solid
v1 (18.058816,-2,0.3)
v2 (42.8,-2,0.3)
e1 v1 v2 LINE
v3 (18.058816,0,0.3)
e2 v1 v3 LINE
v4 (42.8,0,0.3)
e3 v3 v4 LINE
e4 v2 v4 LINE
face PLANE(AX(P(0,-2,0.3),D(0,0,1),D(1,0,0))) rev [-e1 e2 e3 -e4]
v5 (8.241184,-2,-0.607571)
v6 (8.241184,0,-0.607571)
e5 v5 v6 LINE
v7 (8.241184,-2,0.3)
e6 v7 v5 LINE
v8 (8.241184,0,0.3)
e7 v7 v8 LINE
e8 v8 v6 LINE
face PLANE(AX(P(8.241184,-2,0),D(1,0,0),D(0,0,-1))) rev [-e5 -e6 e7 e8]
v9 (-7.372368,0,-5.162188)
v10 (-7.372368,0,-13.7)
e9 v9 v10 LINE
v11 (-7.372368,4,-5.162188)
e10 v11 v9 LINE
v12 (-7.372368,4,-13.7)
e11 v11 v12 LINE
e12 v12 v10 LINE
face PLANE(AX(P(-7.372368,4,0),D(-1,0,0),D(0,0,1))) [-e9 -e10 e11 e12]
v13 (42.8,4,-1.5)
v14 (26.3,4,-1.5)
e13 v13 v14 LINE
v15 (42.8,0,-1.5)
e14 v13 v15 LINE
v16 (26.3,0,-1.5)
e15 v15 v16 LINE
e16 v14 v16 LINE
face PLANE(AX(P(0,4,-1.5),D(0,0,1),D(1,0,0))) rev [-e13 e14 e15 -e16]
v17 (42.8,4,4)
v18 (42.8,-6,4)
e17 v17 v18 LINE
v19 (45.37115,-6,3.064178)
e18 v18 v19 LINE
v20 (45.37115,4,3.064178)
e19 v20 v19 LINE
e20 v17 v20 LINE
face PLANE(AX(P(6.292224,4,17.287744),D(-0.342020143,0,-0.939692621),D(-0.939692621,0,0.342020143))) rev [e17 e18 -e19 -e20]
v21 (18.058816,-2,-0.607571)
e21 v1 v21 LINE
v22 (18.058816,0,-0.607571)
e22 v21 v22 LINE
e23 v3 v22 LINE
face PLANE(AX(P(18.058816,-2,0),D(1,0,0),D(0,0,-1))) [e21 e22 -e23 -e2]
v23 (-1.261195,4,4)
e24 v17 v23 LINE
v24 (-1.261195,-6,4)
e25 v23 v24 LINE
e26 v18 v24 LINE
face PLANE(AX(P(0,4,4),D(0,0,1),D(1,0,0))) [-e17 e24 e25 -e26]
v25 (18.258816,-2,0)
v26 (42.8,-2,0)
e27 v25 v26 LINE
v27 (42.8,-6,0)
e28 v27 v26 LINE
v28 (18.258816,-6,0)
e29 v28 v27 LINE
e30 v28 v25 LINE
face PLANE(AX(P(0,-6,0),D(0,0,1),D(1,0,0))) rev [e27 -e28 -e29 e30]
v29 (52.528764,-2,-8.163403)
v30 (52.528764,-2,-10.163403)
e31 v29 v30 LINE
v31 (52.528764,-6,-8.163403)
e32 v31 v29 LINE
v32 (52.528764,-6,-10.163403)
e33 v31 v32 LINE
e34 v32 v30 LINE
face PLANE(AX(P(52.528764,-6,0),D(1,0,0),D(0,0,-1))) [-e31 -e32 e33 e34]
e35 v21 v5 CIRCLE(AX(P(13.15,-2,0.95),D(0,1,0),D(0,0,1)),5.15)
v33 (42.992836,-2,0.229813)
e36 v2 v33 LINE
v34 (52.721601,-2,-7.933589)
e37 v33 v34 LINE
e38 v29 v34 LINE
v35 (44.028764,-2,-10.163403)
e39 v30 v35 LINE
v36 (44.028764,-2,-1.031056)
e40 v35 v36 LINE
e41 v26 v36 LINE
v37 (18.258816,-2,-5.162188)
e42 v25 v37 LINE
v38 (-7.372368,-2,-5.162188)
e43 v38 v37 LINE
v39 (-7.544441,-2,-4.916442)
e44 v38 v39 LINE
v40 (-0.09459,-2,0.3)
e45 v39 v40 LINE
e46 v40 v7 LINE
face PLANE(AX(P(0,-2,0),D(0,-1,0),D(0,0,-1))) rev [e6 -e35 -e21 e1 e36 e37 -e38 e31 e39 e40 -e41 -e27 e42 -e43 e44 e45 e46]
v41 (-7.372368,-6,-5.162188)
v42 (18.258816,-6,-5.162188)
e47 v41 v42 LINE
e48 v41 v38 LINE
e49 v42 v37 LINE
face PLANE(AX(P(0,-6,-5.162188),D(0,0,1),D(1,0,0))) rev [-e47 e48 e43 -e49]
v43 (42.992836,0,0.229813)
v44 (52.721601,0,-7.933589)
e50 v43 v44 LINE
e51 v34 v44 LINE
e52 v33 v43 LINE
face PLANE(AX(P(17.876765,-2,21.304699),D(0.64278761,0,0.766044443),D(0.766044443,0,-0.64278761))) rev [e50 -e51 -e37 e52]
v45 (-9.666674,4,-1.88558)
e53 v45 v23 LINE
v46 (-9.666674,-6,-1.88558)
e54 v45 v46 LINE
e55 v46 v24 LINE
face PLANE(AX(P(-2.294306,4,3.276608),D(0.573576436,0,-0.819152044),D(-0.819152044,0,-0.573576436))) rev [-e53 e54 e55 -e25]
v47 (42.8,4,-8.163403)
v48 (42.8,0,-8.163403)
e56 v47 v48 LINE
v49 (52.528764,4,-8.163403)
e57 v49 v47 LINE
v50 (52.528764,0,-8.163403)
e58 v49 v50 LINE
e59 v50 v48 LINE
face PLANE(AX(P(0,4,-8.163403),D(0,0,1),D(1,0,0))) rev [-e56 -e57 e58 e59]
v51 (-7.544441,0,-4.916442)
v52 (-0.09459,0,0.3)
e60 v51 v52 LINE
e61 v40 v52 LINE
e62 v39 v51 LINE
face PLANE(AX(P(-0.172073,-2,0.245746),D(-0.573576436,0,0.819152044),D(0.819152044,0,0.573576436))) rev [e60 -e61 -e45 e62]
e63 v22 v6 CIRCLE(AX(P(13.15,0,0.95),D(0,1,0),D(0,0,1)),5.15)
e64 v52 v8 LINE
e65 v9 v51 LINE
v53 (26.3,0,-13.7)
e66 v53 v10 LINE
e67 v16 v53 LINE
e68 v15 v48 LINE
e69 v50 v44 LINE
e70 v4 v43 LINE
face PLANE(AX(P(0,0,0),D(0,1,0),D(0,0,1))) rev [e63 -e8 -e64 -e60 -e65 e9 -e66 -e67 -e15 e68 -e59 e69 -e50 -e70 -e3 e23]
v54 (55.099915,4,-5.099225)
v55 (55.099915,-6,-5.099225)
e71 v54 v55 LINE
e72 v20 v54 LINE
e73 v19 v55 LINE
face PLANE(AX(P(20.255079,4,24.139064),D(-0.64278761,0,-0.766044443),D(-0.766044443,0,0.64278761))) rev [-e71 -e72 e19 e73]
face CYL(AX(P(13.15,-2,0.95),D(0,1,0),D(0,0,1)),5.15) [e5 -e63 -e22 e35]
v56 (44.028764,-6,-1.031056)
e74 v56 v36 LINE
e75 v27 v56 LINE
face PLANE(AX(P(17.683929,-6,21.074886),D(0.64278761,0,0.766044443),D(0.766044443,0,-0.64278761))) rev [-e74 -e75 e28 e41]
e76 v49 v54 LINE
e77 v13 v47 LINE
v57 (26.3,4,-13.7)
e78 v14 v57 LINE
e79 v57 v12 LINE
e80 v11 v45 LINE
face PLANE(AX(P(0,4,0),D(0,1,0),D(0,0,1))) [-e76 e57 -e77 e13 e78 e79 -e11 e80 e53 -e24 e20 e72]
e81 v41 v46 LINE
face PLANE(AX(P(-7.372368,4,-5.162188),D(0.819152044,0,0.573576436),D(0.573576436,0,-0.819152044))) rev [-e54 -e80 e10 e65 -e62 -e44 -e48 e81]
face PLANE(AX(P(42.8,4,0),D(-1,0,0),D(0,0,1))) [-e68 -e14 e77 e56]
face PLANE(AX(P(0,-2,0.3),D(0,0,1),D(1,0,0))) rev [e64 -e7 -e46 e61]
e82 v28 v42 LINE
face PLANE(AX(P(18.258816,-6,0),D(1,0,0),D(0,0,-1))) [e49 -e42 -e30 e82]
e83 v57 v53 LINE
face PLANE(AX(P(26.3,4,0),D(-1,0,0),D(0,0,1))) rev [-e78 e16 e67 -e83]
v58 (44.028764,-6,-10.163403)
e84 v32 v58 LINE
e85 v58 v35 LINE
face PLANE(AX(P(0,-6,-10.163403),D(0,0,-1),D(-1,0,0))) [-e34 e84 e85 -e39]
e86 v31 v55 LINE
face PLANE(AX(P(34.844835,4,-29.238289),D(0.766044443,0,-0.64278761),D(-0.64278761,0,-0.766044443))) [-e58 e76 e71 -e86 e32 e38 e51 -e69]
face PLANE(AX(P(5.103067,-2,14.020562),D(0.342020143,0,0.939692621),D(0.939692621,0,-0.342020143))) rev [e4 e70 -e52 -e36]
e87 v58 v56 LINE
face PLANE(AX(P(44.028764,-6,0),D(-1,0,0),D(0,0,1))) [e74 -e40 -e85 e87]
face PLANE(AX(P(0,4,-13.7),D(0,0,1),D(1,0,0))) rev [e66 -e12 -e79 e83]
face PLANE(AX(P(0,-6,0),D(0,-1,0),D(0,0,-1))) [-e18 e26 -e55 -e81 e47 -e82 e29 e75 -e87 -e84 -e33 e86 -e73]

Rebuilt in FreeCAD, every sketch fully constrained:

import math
import FreeCAD as App
import Part
import Sketcher
from FreeCAD import Vector
Q = App.Units.Quantity


def add_polygon(sketch, points):
    """Adds a closed chain of lines whose ends are joined by coincident constraints."""
    first, n = sketch.GeometryCount, len(points)
    for a, b in zip(points, points[1:] + points[:1]):
        sketch.addGeometry(Part.LineSegment(App.Vector(*a, 0), App.Vector(*b, 0)), False)
    for i in range(n):
        sketch.addConstraint(Sketcher.Constraint("Coincident", first + i, 2, first + (i + 1) % n, 1))

doc = App.newDocument("Part")
body = doc.addObject("PartDesign::Body", "Body")

# Sketch on XZ plane
sketch1 = body.newObject("Sketcher::SketchObject", "Sketch")
sketch1.AttachmentSupport = (doc.getObject("XZ_Plane"), [""])
sketch1.MapMode = "FlatFace"
add_polygon(sketch1, [(52.53, -8.16), (42.8, -8.16), (42.8, -1.5), (26.3, -1.5), (26.3, -13.7), (-7.37, -13.7), (-7.37, -5.16), (-7.54, -4.92), (-9.67, -1.89), (-1.26, 4), (42.8, 4), (45.37, 3.06), (55.1, -5.1), (52.72, -7.93)])  # lines 0-13
sketch1.addConstraint([
    Sketcher.Constraint("Horizontal", 0),
    Sketcher.Constraint("Vertical", 1),
    Sketcher.Constraint("Horizontal", 2),
    Sketcher.Constraint("Vertical", 3),
    Sketcher.Constraint("Horizontal", 4),
    Sketcher.Constraint("Vertical", 5),
    Sketcher.Constraint("Horizontal", 9),
    Sketcher.Constraint("Parallel", 6, 7),
    Sketcher.Constraint("Perpendicular", 7, 8),
    Sketcher.Constraint("Perpendicular", 11, 12),
    Sketcher.Constraint("Parallel", 12, 13),
    Sketcher.Constraint("Vertical", 1, 2, 9, 2),
    Sketcher.Constraint("Equal", 7, 12),
    Sketcher.Constraint("Equal", 6, 13),
    Sketcher.Constraint("Angle", 6, Q("125 deg")),
    Sketcher.Constraint("Angle", 10, Q("-20 deg")),
    Sketcher.Constraint("Angle", 11, Q("-40 deg")),
    Sketcher.Constraint("DistanceX", 2, 2, 2, 1, Q("16.5 mm")),
    Sketcher.Constraint("DistanceY", 3, 2, 3, 1, Q("12.2 mm")),
    Sketcher.Constraint("DistanceY", -1, 1, 8, 2, Q("4 mm")),
    Sketcher.Constraint("Distance", 6, Q("0.3 mm")),
    Sketcher.Constraint("Distance", 7, Q("3.7 mm")),
    Sketcher.Constraint("Distance", 11, Q("12.7 mm")),
    Sketcher.Constraint("DistanceX", -1, 1, 0, 2, Q("42.8 mm")),
    Sketcher.Constraint("DistanceY", 1, 2, -1, 1, Q("1.5 mm")),
    Sketcher.Constraint("DistanceX", 4, 2, 4, 1, Q("33.672368 mm")),
    Sketcher.Constraint("DistanceX", -1, 1, 12, 2, Q("52.721601 mm")),
    Sketcher.Constraint("DistanceX", 9, 1, 9, 2, Q("44.061195 mm")),
])
pad1 = body.newObject("PartDesign::Pad", "Pad")
pad1.Profile = sketch1
pad1.Length = 4
pad1.Reversed = True

# Sketch on XZ plane
sketch2 = body.newObject("Sketcher::SketchObject", "Sketch001")
sketch2.AttachmentSupport = (doc.getObject("XZ_Plane"), [""])
sketch2.MapMode = "FlatFace"
sketch2.addGeometry([
    Part.LineSegment(Vector(-0.09, 0.3, 0), Vector(-7.54, -4.92, 0)),  # 0
    Part.LineSegment(Vector(-7.54, -4.92, 0), Vector(-9.67, -1.89, 0)),  # 1
    Part.LineSegment(Vector(-9.67, -1.89, 0), Vector(-1.26, 4, 0)),  # 2
    Part.LineSegment(Vector(-1.26, 4, 0), Vector(42.8, 4, 0)),  # 3
    Part.LineSegment(Vector(42.8, 4, 0), Vector(45.37, 3.06, 0)),  # 4
    Part.LineSegment(Vector(45.37, 3.06, 0), Vector(55.1, -5.1, 0)),  # 5
    Part.LineSegment(Vector(55.1, -5.1, 0), Vector(52.72, -7.93, 0)),  # 6
    Part.LineSegment(Vector(52.72, -7.93, 0), Vector(43.64, -0.31, 0)),  # 7
    Part.LineSegment(Vector(43.64, -0.31, 0), Vector(42.99, 0.23, 0)),  # 8
    Part.LineSegment(Vector(42.99, 0.23, 0), Vector(42.8, 0.3, 0)),  # 9
    Part.LineSegment(Vector(42.8, 0.3, 0), Vector(18.06, 0.3, 0)),  # 10
    Part.LineSegment(Vector(18.06, 0.3, 0), Vector(18.06, -0.61, 0)),  # 11
    Part.ArcOfCircle(Part.Circle(Vector(13.15, 0.95, 0), Vector(0, 0, 1), 5.15), math.radians(-90), math.radians(-18)),  # 12
    Part.ArcOfCircle(Part.Circle(Vector(13.15, 0.95, 0), Vector(0, 0, 1), 5.15), math.radians(-162), math.radians(-90)),  # 13
    Part.LineSegment(Vector(8.24, -0.61, 0), Vector(8.24, 0.3, 0)),  # 14
    Part.LineSegment(Vector(8.24, 0.3, 0), Vector(-0.09, 0.3, 0)),  # 15
], False)
sketch2.addConstraint([
    Sketcher.Constraint("Coincident", 0, 2, 1, 1),
    Sketcher.Constraint("Coincident", 1, 2, 2, 1),
    Sketcher.Constraint("Coincident", 2, 2, 3, 1),
    Sketcher.Constraint("Coincident", 3, 2, 4, 1),
    Sketcher.Constraint("Coincident", 4, 2, 5, 1),
    Sketcher.Constraint("Coincident", 5, 2, 6, 1),
    Sketcher.Constraint("Coincident", 6, 2, 7, 1),
    Sketcher.Constraint("Coincident", 7, 2, 8, 1),
    Sketcher.Constraint("Coincident", 8, 2, 9, 1),
    Sketcher.Constraint("Coincident", 9, 2, 10, 1),
    Sketcher.Constraint("Coincident", 10, 2, 11, 1),
    Sketcher.Constraint("Coincident", 11, 2, 12, 2),
    Sketcher.Constraint("Tangent", 12, 1, 13, 2),
    Sketcher.Constraint("Coincident", 13, 1, 14, 1),
    Sketcher.Constraint("Coincident", 14, 2, 15, 1),
    Sketcher.Constraint("Coincident", 15, 2, 0, 1),
    Sketcher.Constraint("Horizontal", 3),
    Sketcher.Constraint("Horizontal", 10),
    Sketcher.Constraint("Vertical", 11),
    Sketcher.Constraint("Vertical", 14),
    Sketcher.Constraint("Horizontal", 15),
    Sketcher.Constraint("Equal", 12, 13),
    Sketcher.Constraint("Perpendicular", 0, 1),
    Sketcher.Constraint("Perpendicular", 1, 2),
    Sketcher.Constraint("Perpendicular", 5, 6),
    Sketcher.Constraint("Perpendicular", 6, 7),
    Sketcher.Constraint("Parallel", 7, 8),
    Sketcher.Constraint("Parallel", 4, 9),
    Sketcher.Constraint("Horizontal", 11, 2, 13, 1),
    Sketcher.Constraint("Horizontal", 10, 2, 14, 2),
    Sketcher.Constraint("Vertical", 3, 2, 9, 2),
    Sketcher.Constraint("Vertical", 13, 3, 12, 1),
    Sketcher.Constraint("Equal", 1, 6),
    Sketcher.Constraint("Angle", 0, Q("-145 deg")),
    Sketcher.Constraint("Angle", 4, Q("-20 deg")),
    Sketcher.Constraint("Angle", 5, Q("-40 deg")),
    Sketcher.Constraint("Radius", 12, Q("5.15 mm")),
    Sketcher.Constraint("DistanceY", -1, 1, 2, 2, Q("4 mm")),
    Sketcher.Constraint("Distance", 1, Q("3.7 mm")),
    Sketcher.Constraint("Distance", 5, Q("12.7 mm")),
    Sketcher.Constraint("DistanceX", -1, 1, 3, 2, Q("42.8 mm")),
    Sketcher.Constraint("DistanceY", -1, 1, 9, 2, Q("0.3 mm")),
    Sketcher.Constraint("DistanceY", 12, 1, -1, 1, Q("4.2 mm")),
    Sketcher.Constraint("DistanceX", -1, 1, 12, 3, Q("13.15 mm")),
    Sketcher.Constraint("DistanceY", 11, 2, 11, 1, Q("0.907571 mm")),
    Sketcher.Constraint("DistanceX", -1, 1, 6, 2, Q("52.721601 mm")),
    Sketcher.Constraint("DistanceY", 6, 2, 7, 2, Q("7.620798 mm")),
    Sketcher.Constraint("Distance", 0, Q("9.09459 mm")),
    Sketcher.Constraint("DistanceX", 3, 1, 3, 2, Q("44.061195 mm")),
])
pad2 = body.newObject("PartDesign::Pad", "Pad001")
pad2.Profile = sketch2
pad2.Length = 2

# Sketch on XZ plane
sketch3 = body.newObject("Sketcher::SketchObject", "Sketch002")
sketch3.AttachmentSupport = (doc.getObject("XZ_Plane"), [""])
sketch3.MapMode = "FlatFace"
sketch3.AttachmentOffset = App.Placement(Vector(0, 0, 2), App.Rotation())
add_polygon(sketch3, [(18.26, -5.16), (18.26, 0), (42.8, 0), (44.03, -1.03), (44.03, -10.16), (52.53, -10.16), (52.53, -8.16), (52.72, -7.93), (55.1, -5.1), (45.37, 3.06), (42.8, 4), (-1.26, 4), (-9.67, -1.89), (-7.54, -4.92), (-7.37, -5.16)])  # lines 0-14
sketch3.addConstraint([
    Sketcher.Constraint("Vertical", 0),
    Sketcher.Constraint("Horizontal", 1),
    Sketcher.Constraint("Vertical", 3),
    Sketcher.Constraint("Horizontal", 4),
    Sketcher.Constraint("Vertical", 5),
    Sketcher.Constraint("Horizontal", 10),
    Sketcher.Constraint("Horizontal", 14),
    Sketcher.Constraint("PointOnObject", 0, 2, -1),
    Sketcher.Constraint("Perpendicular", 2, 6),
    Sketcher.Constraint("Parallel", 6, 7),
    Sketcher.Constraint("Perpendicular", 7, 8),
    Sketcher.Constraint("Perpendicular", 11, 12),
    Sketcher.Constraint("Parallel", 12, 13),
    Sketcher.Constraint("Vertical", 1, 2, 9, 2),
    Sketcher.Constraint("Equal", 7, 12),
    Sketcher.Constraint("Equal", 6, 13),
    Sketcher.Constraint("DistanceY", 5, 1, 5, 2, Q("2 mm")),
    Sketcher.Constraint("Angle", 2, Q("-40 deg")),
    Sketcher.Constraint("Angle", 9, Q("160 deg")),
    Sketcher.Constraint("Angle", 11, Q("-145 deg")),
    Sketcher.Constraint("DistanceX", 4, 1, 4, 2, Q("8.5 mm")),
    Sketcher.Constraint("DistanceY", -1, 1, 9, 2, Q("4 mm")),
    Sketcher.Constraint("Distance", 6, Q("0.3 mm")),
    Sketcher.Constraint("Distance", 7, Q("3.7 mm")),
    Sketcher.Constraint("Distance", 8, Q("12.7 mm")),
    Sketcher.Constraint("DistanceX", -1, 1, 1, 2, Q("42.8 mm")),
    Sketcher.Constraint("DistanceX", -1, 1, 6, 2, Q("52.721601 mm")),
    Sketcher.Constraint("DistanceX", 1, 1, 1, 2, Q("24.541184 mm")),
    Sketcher.Constraint("DistanceX", 10, 2, 10, 1, Q("44.061195 mm")),
    Sketcher.Constraint("DistanceX", 14, 1, 14, 2, Q("25.631184 mm")),
])
pad3 = body.newObject("PartDesign::Pad", "Pad002")
pad3.Profile = sketch3
pad3.Length = 4

doc.recompute()
